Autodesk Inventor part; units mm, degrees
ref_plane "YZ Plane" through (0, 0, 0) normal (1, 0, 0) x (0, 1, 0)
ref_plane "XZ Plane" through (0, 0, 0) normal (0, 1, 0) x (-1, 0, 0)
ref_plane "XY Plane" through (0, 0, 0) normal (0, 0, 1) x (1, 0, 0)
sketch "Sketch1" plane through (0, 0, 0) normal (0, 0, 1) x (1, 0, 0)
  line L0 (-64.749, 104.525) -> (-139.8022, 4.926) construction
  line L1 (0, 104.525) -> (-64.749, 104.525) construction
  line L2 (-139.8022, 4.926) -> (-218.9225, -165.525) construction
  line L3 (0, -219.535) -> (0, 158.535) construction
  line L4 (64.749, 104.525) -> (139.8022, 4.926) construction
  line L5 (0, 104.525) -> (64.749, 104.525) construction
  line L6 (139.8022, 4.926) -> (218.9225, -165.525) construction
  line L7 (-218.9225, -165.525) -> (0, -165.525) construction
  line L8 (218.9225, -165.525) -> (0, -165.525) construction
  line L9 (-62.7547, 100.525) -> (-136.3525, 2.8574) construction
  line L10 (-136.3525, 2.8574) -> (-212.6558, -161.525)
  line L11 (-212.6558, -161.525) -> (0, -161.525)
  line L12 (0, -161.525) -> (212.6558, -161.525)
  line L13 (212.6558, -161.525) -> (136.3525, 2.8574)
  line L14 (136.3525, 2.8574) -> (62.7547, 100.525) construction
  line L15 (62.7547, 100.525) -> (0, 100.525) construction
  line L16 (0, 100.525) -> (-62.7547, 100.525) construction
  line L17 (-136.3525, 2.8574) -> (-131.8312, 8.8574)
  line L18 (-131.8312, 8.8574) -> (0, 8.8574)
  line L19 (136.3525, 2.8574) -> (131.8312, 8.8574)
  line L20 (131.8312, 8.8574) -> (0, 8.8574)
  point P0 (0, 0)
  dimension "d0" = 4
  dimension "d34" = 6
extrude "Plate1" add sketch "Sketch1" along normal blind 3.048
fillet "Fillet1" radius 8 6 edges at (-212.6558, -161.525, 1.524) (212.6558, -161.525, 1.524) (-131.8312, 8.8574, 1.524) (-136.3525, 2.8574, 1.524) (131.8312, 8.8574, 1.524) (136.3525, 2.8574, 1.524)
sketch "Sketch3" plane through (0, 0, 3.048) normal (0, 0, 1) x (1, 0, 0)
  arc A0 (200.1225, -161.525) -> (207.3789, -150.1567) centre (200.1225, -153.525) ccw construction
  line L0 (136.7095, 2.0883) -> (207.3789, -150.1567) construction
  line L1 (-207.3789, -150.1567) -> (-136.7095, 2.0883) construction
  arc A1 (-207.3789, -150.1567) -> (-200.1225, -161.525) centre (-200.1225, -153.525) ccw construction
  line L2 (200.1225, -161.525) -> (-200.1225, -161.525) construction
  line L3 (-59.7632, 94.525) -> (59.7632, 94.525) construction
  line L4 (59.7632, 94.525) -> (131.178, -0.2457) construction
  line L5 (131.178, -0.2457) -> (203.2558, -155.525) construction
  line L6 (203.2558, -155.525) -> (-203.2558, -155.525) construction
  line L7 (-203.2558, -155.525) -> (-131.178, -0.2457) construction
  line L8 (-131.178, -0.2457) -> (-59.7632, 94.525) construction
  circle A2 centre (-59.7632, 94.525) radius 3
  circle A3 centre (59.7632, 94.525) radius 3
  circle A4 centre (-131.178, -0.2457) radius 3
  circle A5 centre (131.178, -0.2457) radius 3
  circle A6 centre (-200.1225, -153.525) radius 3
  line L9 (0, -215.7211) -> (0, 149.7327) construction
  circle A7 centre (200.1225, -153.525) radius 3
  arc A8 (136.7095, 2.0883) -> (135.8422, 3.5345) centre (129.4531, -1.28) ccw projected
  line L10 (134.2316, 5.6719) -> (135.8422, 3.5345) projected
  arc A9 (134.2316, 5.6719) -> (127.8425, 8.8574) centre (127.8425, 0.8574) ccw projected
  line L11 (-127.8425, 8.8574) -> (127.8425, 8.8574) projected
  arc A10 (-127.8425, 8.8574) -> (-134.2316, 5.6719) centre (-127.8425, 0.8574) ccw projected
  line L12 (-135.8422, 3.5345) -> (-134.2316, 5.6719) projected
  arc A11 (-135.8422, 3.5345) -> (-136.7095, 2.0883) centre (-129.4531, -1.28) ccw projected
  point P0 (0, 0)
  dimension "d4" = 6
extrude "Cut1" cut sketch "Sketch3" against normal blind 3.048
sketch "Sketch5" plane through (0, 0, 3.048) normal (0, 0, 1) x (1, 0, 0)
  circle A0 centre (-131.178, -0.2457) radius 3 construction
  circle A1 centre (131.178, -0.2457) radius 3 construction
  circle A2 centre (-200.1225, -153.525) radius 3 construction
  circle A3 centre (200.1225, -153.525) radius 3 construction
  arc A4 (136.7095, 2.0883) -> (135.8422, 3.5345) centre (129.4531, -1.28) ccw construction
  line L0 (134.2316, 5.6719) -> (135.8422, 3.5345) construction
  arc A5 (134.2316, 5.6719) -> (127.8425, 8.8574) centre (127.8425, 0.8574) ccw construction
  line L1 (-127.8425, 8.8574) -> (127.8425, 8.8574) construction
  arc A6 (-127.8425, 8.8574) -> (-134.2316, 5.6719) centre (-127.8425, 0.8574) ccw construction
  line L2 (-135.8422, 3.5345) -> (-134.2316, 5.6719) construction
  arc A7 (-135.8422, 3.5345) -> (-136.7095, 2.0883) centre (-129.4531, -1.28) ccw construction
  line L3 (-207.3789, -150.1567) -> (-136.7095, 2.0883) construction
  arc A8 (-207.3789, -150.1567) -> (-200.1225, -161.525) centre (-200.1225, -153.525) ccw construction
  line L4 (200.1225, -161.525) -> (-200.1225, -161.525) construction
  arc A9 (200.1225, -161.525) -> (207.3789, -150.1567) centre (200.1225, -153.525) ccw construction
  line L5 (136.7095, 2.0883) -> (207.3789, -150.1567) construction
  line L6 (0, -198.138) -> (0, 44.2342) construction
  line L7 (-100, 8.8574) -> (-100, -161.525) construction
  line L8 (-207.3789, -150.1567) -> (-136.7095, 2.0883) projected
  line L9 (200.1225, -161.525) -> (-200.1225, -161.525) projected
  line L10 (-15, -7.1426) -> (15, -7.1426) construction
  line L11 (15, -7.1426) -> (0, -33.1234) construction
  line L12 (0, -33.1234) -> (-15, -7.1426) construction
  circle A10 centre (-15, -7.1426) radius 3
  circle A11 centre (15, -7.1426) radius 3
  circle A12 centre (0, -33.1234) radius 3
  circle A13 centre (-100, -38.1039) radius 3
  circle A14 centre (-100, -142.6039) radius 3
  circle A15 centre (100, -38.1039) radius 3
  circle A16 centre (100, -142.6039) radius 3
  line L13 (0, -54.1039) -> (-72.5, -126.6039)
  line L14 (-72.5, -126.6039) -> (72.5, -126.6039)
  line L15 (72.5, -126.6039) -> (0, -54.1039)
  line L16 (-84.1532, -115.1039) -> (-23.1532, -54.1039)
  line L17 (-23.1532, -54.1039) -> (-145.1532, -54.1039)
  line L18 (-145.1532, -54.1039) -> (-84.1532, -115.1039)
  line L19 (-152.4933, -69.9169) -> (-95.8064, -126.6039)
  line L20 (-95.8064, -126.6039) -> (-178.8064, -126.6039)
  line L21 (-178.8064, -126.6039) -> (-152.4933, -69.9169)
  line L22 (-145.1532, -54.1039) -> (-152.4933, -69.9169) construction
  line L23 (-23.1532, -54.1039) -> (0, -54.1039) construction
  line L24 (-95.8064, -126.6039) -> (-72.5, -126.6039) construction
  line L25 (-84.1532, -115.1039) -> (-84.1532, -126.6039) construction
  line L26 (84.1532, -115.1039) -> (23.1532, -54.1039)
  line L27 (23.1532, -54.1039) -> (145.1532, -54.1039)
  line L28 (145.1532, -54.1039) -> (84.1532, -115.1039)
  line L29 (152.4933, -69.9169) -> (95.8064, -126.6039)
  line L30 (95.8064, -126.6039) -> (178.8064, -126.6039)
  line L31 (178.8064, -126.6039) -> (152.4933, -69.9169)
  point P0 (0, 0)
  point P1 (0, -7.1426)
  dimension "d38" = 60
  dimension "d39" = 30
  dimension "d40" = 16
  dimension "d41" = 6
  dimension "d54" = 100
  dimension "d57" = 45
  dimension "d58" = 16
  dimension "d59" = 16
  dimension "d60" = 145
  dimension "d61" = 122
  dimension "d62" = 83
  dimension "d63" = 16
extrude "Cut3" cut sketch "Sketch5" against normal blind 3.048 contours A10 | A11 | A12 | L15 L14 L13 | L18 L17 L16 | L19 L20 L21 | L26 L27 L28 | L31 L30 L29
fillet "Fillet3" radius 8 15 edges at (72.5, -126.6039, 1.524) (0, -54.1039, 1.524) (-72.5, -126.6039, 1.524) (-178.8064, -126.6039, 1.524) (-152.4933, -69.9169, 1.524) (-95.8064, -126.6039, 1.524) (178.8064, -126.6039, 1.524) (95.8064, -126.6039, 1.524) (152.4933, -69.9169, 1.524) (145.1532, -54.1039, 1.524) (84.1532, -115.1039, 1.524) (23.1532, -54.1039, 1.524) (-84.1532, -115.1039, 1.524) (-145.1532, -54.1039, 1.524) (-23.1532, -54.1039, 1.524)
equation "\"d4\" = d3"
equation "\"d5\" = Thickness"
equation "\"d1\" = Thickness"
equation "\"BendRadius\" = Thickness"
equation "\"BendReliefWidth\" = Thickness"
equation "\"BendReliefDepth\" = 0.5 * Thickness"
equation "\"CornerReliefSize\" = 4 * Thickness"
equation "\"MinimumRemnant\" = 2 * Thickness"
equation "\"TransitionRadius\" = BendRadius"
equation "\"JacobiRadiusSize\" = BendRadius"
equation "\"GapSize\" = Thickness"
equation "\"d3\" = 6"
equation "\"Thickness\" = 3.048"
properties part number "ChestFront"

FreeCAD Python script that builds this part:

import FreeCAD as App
import Part
import Sketcher
from FreeCAD import Vector
Q = App.Units.Quantity


def edges_at(feature, points):
    """Names of the edges that pass closest to the given points."""
    edges = feature.Shape.Edges
    near = lambda p: min(range(len(edges)), key=lambda i: edges[i].distToShape(Part.Vertex(*p))[0])
    return sorted({f"Edge{near(p) + 1}" for p in points})

doc = App.newDocument("Part")
params = doc.addObject("Spreadsheet::Sheet", "Params")
for row, (alias, value) in enumerate([
    ("pad1_length", "3.048 mm"),
    ("fillet_radius", "8 mm"),
    ("sketch2_diameter", "6 mm"),
    ("pocket1_length", "3.048 mm"),
    ("sketch3_diameter", "6 mm"),
    ("sketch3_width", "145 mm"),
    ("sketch3_width2", "122 mm"),
    ("sketch3_width3", "83 mm"),
    ("pocket2_length", "3.048 mm"),
    ("fillet2_radius", "8 mm"),
], start=1):
    params.set(f"A{row}", alias)
    params.set(f"B{row}", "=" + value)
    params.setAlias(f"B{row}", alias)

body = doc.addObject("PartDesign::Body", "Body")

# Sketch on XY plane
sketch1 = body.newObject("Sketcher::SketchObject", "Sketch")
sketch1.AttachmentSupport = (doc.getObject("XY_Plane"), [""])
sketch1.MapMode = "FlatFace"
sketch1.addGeometry([
    Part.LineSegment(Vector(-132, 9, 0), Vector(-136, 3, 0)),  # 0
    Part.LineSegment(Vector(-136, 3, 0), Vector(-213, -162, 0)),  # 1
    Part.LineSegment(Vector(-213, -162, 0), Vector(213, -162, 0)),  # 2
    Part.LineSegment(Vector(213, -162, 0), Vector(136, 3, 0)),  # 3
    Part.LineSegment(Vector(136, 3, 0), Vector(132, 9, 0)),  # 4
    Part.LineSegment(Vector(132, 9, 0), Vector(-132, 9, 0)),  # 5
], False)
sketch1.addConstraint([
    Sketcher.Constraint("Coincident", 0, 2, 1, 1),
    Sketcher.Constraint("Coincident", 1, 2, 2, 1),
    Sketcher.Constraint("Coincident", 2, 2, 3, 1),
    Sketcher.Constraint("Coincident", 3, 2, 4, 1),
    Sketcher.Constraint("Coincident", 4, 2, 5, 1),
    Sketcher.Constraint("Coincident", 5, 2, 0, 1),
    Sketcher.Constraint("Horizontal", 2),
    Sketcher.Constraint("Horizontal", 5),
    Sketcher.Constraint("Symmetric", 0, 2, 3, 2, -2),
    Sketcher.Constraint("Equal", 1, 3),
    Sketcher.Constraint("Equal", 0, 4),
    Sketcher.Constraint("DistanceY", 3, 2, 4, 2, Q("6 mm")),
    Sketcher.Constraint("Angle", 0, Q("-126.9999 deg")),
    Sketcher.Constraint("Angle", 1, Q("-114.8999 deg")),
    Sketcher.Constraint("DistanceX", 2, 1, 2, 2, Q("425.3116 mm")),
    Sketcher.Constraint("DistanceX", 5, 2, 5, 1, Q("263.6624 mm")),
    Sketcher.Constraint("DistanceY", 1, 2, -1, 1, Q("161.525 mm")),
])
pad1 = body.newObject("PartDesign::Pad", "Pad")
pad1.Profile = sketch1
pad1.setExpression("Length", "Params.pad1_length")
doc.recompute()

fillet = body.newObject("PartDesign::Fillet", "Fillet")
fillet.Base = (pad1, edges_at(pad1, [
    (-212.656, -161.525, 1.524),
    (212.656, -161.525, 1.524),
    (-131.831, 8.857, 1.524),
    (-136.352, 2.857, 1.524),
    (131.831, 8.857, 1.524),
    (136.352, 2.857, 1.524),
]))
fillet.setExpression("Radius", "Params.fillet_radius")

# Sketch on XY plane
sketch2 = body.newObject("Sketcher::SketchObject", "Sketch001")
sketch2.AttachmentSupport = (doc.getObject("XY_Plane"), [""])
sketch2.MapMode = "FlatFace"
sketch2.AttachmentOffset = App.Placement(Vector(0, 0, 3.048), App.Rotation())
sketch2.addGeometry([
    Part.Circle(Vector(-59.8, 94.5, 0), Vector(0, 0, 1), 3),  # 0
    Part.Circle(Vector(59.8, 94.5, 0), Vector(0, 0, 1), 3),  # 1
    Part.Circle(Vector(-131.2, -0.2, 0), Vector(0, 0, 1), 3),  # 2
    Part.Circle(Vector(131.2, -0.2, 0), Vector(0, 0, 1), 3),  # 3
    Part.Circle(Vector(-200.1, -153.5, 0), Vector(0, 0, 1), 3),  # 4
    Part.Circle(Vector(200.1, -153.5, 0), Vector(0, 0, 1), 3),  # 5
], False)
sketch2.addConstraint([
    Sketcher.Constraint("Equal", 0, 1),
    Sketcher.Constraint("Equal", 1, 2),
    Sketcher.Constraint("Equal", 2, 3),
    Sketcher.Constraint("Equal", 3, 4),
    Sketcher.Constraint("Equal", 4, 5),
    Sketcher.Constraint("Symmetric", 0, 3, 1, 3, -2),
    Sketcher.Constraint("Symmetric", 2, 3, 3, 3, -2),
    Sketcher.Constraint("Symmetric", 4, 3, 5, 3, -2),
    Sketcher.Constraint("Diameter", 0, Q("6 mm")),
    Sketcher.Constraint("DistanceY", 4, 3, 0, 3, Q("248.05 mm")),
    Sketcher.Constraint("DistanceY", -1, 1, 0, 3, Q("94.525 mm")),
    Sketcher.Constraint("DistanceX", 2, 3, -1, 1, Q("131.178 mm")),
    Sketcher.Constraint("DistanceX", 4, 3, 5, 3, Q("400.245 mm")),
    Sketcher.Constraint("DistanceX", 0, 3, -1, 1, Q("59.7632 mm")),
    Sketcher.Constraint("DistanceY", 2, 3, -1, 1, Q("0.2457 mm")),
])
sketch2.setExpression("Constraints[8]", "Params.sketch2_diameter")
pocket1 = body.newObject("PartDesign::Pocket", "Pocket")
pocket1.Profile = sketch2
pocket1.setExpression("Length", "Params.pocket1_length")

# Sketch on XY plane
sketch3 = body.newObject("Sketcher::SketchObject", "Sketch002")
sketch3.AttachmentSupport = (doc.getObject("XY_Plane"), [""])
sketch3.MapMode = "FlatFace"
sketch3.AttachmentOffset = App.Placement(Vector(0, 0, 3.048), App.Rotation())
sketch3.addGeometry([
    Part.Circle(Vector(-15, -7.1, 0), Vector(0, 0, 1), 3),  # 0
    Part.Circle(Vector(15, -7.1, 0), Vector(0, 0, 1), 3),  # 1
    Part.Circle(Vector(0, -33.1, 0), Vector(0, 0, 1), 3),  # 2
    Part.LineSegment(Vector(72.5, -126.6, 0), Vector(0, -54.1, 0)),  # 3
    Part.LineSegment(Vector(0, -54.1, 0), Vector(-72.5, -126.6, 0)),  # 4
    Part.LineSegment(Vector(-72.5, -126.6, 0), Vector(72.5, -126.6, 0)),  # 5
    Part.LineSegment(Vector(-145.2, -54.1, 0), Vector(-84.2, -115.1, 0)),  # 6
    Part.LineSegment(Vector(-84.2, -115.1, 0), Vector(-23.2, -54.1, 0)),  # 7
    Part.LineSegment(Vector(-23.2, -54.1, 0), Vector(-145.2, -54.1, 0)),  # 8
    Part.LineSegment(Vector(-95.8, -126.6, 0), Vector(-152.5, -69.9, 0)),  # 9
    Part.LineSegment(Vector(-152.5, -69.9, 0), Vector(-178.8, -126.6, 0)),  # 10
    Part.LineSegment(Vector(-178.8, -126.6, 0), Vector(-95.8, -126.6, 0)),  # 11
    Part.LineSegment(Vector(23.2, -54.1, 0), Vector(84.2, -115.1, 0)),  # 12
    Part.LineSegment(Vector(84.2, -115.1, 0), Vector(145.2, -54.1, 0)),  # 13
    Part.LineSegment(Vector(145.2, -54.1, 0), Vector(23.2, -54.1, 0)),  # 14
    Part.LineSegment(Vector(178.8, -126.6, 0), Vector(152.5, -69.9, 0)),  # 15
    Part.LineSegment(Vector(152.5, -69.9, 0), Vector(95.8, -126.6, 0)),  # 16
    Part.LineSegment(Vector(95.8, -126.6, 0), Vector(178.8, -126.6, 0)),  # 17
], False)
sketch3.addConstraint([
    Sketcher.Constraint("Coincident", 3, 2, 4, 1),
    Sketcher.Constraint("Coincident", 4, 2, 5, 1),
    Sketcher.Constraint("Coincident", 5, 2, 3, 1),
    Sketcher.Constraint("Coincident", 6, 2, 7, 1),
    Sketcher.Constraint("Coincident", 7, 2, 8, 1),
    Sketcher.Constraint("Coincident", 8, 2, 6, 1),
    Sketcher.Constraint("Coincident", 9, 2, 10, 1),
    Sketcher.Constraint("Coincident", 10, 2, 11, 1),
    Sketcher.Constraint("Coincident", 11, 2, 9, 1),
    Sketcher.Constraint("Coincident", 12, 2, 13, 1),
    Sketcher.Constraint("Coincident", 13, 2, 14, 1),
    Sketcher.Constraint("Coincident", 14, 2, 12, 1),
    Sketcher.Constraint("Coincident", 15, 2, 16, 1),
    Sketcher.Constraint("Coincident", 16, 2, 17, 1),
    Sketcher.Constraint("Coincident", 17, 2, 15, 1),
    Sketcher.Constraint("Horizontal", 5),
    Sketcher.Constraint("Horizontal", 8),
    Sketcher.Constraint("Horizontal", 11),
    Sketcher.Constraint("Horizontal", 14),
    Sketcher.Constraint("Horizontal", 17),
    Sketcher.Constraint("Equal", 0, 1),
    Sketcher.Constraint("Equal", 1, 2),
    Sketcher.Constraint("Symmetric", 0, 3, 1, 3, -2),
    Sketcher.Constraint("Symmetric", 6, 2, 12, 2, -2),
    Sketcher.Constraint("Symmetric", 8, 2, 13, 2, -2),
    Sketcher.Constraint("Symmetric", 9, 2, 15, 2, -2),
    Sketcher.Constraint("Symmetric", 11, 2, 16, 2, -2),
    Sketcher.Constraint("PointOnObject", 2, 3, -2),
    Sketcher.Constraint("PointOnObject", 3, 2, -2),
    Sketcher.Constraint("Perpendicular", 3, 4),
    Sketcher.Constraint("Perpendicular", 4, 6),
    Sketcher.Constraint("Perpendicular", 6, 7),
    Sketcher.Constraint("Perpendicular", 7, 9),
    Sketcher.Constraint("Parallel", 9, 12),
    Sketcher.Constraint("Perpendicular", 12, 13),
    Sketcher.Constraint("Horizontal", 3, 2, 7, 2),
    Sketcher.Constraint("Horizontal", 5, 2, 10, 2),
    Sketcher.Constraint("Equal", 11, 17),
    Sketcher.Constraint("Diameter", 0, Q("6 mm")),
    Sketcher.Constraint("DistanceX", 5, 1, 5, 2, Q("145 mm")),
    Sketcher.Constraint("DistanceX", 8, 2, 8, 1, Q("122 mm")),
    Sketcher.Constraint("DistanceX", 11, 1, 11, 2, Q("83 mm")),
    Sketcher.Constraint("DistanceX", 0, 3, 1, 3, Q("30 mm")),
    Sketcher.Constraint("Angle", 10, Q("-114.9 deg")),
    Sketcher.Constraint("DistanceX", 9, 2, 8, 2, Q("7.34 mm")),
    Sketcher.Constraint("DistanceY", 3, 2, -1, 1, Q("54.104 mm")),
    Sketcher.Constraint("DistanceY", 0, 3, -1, 1, Q("7.1426 mm")),
    Sketcher.Constraint("DistanceY", 2, 3, -1, 1, Q("33.1234 mm")),
    Sketcher.Constraint("DistanceX", 6, 2, -1, 1, Q("84.1532 mm")),
])
sketch3.setExpression("Constraints[38]", "Params.sketch3_diameter")
sketch3.setExpression("Constraints[39]", "Params.sketch3_width")
sketch3.setExpression("Constraints[40]", "Params.sketch3_width2")
sketch3.setExpression("Constraints[41]", "Params.sketch3_width3")
pocket2 = body.newObject("PartDesign::Pocket", "Pocket001")
pocket2.Profile = sketch3
pocket2.setExpression("Length", "Params.pocket2_length")
doc.recompute()

fillet2 = body.newObject("PartDesign::Fillet", "Fillet001")
fillet2.Base = (pocket2, edges_at(pocket2, [
    (72.5, -126.604, 1.524),
    (0, -54.104, 1.524),
    (-72.5, -126.604, 1.524),
    (-178.806, -126.604, 1.524),
    (-152.493, -69.917, 1.524),
    (-95.806, -126.604, 1.524),
    (178.806, -126.604, 1.524),
    (95.806, -126.604, 1.524),
    (152.493, -69.917, 1.524),
    (145.153, -54.104, 1.524),
    (84.153, -115.104, 1.524),
    (23.153, -54.104, 1.524),
    (-84.153, -115.104, 1.524),
    (-145.153, -54.104, 1.524),
    (-23.153, -54.104, 1.524),
]))
fillet2.setExpression("Radius", "Params.fillet2_radius")

doc.recompute()
